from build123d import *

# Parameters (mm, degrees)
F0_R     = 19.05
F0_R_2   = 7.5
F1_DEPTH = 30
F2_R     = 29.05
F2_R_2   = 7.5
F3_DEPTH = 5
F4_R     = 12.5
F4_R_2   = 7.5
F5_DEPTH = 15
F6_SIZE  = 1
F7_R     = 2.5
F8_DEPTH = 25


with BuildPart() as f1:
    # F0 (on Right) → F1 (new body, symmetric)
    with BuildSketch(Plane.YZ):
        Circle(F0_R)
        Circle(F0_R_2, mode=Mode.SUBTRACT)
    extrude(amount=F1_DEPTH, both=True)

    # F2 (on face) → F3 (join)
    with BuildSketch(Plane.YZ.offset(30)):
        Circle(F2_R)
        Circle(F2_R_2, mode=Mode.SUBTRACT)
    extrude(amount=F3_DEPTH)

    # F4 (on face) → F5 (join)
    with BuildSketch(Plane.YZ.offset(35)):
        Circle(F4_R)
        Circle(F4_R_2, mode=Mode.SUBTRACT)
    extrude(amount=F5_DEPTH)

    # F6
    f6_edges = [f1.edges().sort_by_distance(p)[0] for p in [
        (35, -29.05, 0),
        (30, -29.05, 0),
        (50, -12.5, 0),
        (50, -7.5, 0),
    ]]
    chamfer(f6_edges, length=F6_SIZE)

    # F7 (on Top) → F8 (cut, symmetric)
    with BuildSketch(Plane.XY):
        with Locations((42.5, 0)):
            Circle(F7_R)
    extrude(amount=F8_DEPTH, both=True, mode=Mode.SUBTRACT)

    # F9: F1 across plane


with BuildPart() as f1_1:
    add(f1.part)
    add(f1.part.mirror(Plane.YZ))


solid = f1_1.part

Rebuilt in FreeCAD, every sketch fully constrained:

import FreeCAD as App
import Part
import Sketcher
from FreeCAD import Vector


def edges_at(feature, points):
    """Names of the edges that pass closest to the given points."""
    edges = feature.Shape.Edges
    near = lambda p: min(range(len(edges)), key=lambda i: edges[i].distToShape(Part.Vertex(*p))[0])
    return sorted({f"Edge{near(p) + 1}" for p in points})

doc = App.newDocument("Part")
body = doc.addObject("PartDesign::Body", "Body")

# Sketch on YZ plane
sketch1 = body.newObject("Sketcher::SketchObject", "Sketch")
sketch1.AttachmentSupport = (doc.getObject("YZ_Plane"), [""])
sketch1.MapMode = "FlatFace"
sketch1.addGeometry([
    Part.Circle(Vector(0, 0, 0), Vector(0, 0, 1), 19),
    Part.Circle(Vector(0, 0, 0), Vector(0, 0, 1), 8),
], False)
sketch1.addConstraint([
    Sketcher.Constraint("Coincident", 0, 3, -1, 1),
    Sketcher.Constraint("Coincident", 1, 3, -1, 1),
    Sketcher.Constraint("Diameter", 1, 15.0),
    Sketcher.Constraint("Diameter", 0, 38.1),
])
pad1 = body.newObject("PartDesign::Pad", "Pad")
pad1.Profile = sketch1
pad1.Length = 60
pad1.Midplane = True

# Sketch on YZ plane
sketch2 = body.newObject("Sketcher::SketchObject", "Sketch001")
sketch2.AttachmentSupport = (doc.getObject("YZ_Plane"), [""])
sketch2.MapMode = "FlatFace"
sketch2.AttachmentOffset = App.Placement(Vector(0, 0, 30), App.Rotation())
sketch2.addGeometry([
    Part.Circle(Vector(0, 0, 0), Vector(0, 0, 1), 29),
    Part.Circle(Vector(0, 0, 0), Vector(0, 0, 1), 8),
], False)
sketch2.addConstraint([
    Sketcher.Constraint("Coincident", 0, 3, -1, 1),
    Sketcher.Constraint("Coincident", 1, 3, -1, 1),
    Sketcher.Constraint("Diameter", 1, 15.0),
    Sketcher.Constraint("Diameter", 0, 58.1),
])
pad2 = body.newObject("PartDesign::Pad", "Pad001")
pad2.Profile = sketch2
pad2.Length = 5

# Sketch on YZ plane
sketch3 = body.newObject("Sketcher::SketchObject", "Sketch002")
sketch3.AttachmentSupport = (doc.getObject("YZ_Plane"), [""])
sketch3.MapMode = "FlatFace"
sketch3.AttachmentOffset = App.Placement(Vector(0, 0, 35), App.Rotation())
sketch3.addGeometry([
    Part.Circle(Vector(0, 0, 0), Vector(0, 0, 1), 12),
    Part.Circle(Vector(0, 0, 0), Vector(0, 0, 1), 8),
], False)
sketch3.addConstraint([
    Sketcher.Constraint("Coincident", 0, 3, -1, 1),
    Sketcher.Constraint("Coincident", 1, 3, -1, 1),
    Sketcher.Constraint("Diameter", 0, 25.0),
    Sketcher.Constraint("Diameter", 1, 15.0),
])
pad3 = body.newObject("PartDesign::Pad", "Pad002")
pad3.Profile = sketch3
pad3.Length = 15
doc.recompute()

chamfer = body.newObject("PartDesign::Chamfer", "Chamfer")
chamfer.Base = (pad3, edges_at(pad3, [
    (35, -29.05, 0),
    (30, -29.05, 0),
    (50, -12.5, 0),
    (50, -7.5, 0),
]))
chamfer.Size = 1

# Sketch on XY plane
sketch4 = body.newObject("Sketcher::SketchObject", "Sketch003")
sketch4.AttachmentSupport = (doc.getObject("XY_Plane"), [""])
sketch4.MapMode = "FlatFace"
sketch4.addGeometry(Part.Circle(Vector(42.5, 0, 0), Vector(0, 0, 1), 2.5), False)
sketch4.addConstraint([
    Sketcher.Constraint("PointOnObject", 0, 3, -1),
    Sketcher.Constraint("Diameter", 0, 5.0),
    Sketcher.Constraint("DistanceX", -1, 1, 0, 3, 42.5),
])
pocket1 = body.newObject("PartDesign::Pocket", "Pocket")
pocket1.Profile = sketch4
pocket1.Length = 50
pocket1.Midplane = True
body2 = doc.addObject("PartDesign::Body", "Body001")
doc.recompute()

body2.BaseFeature = body
doc.recompute()

mirroring = doc.addObject("Part::Mirroring", "Mirroring")
mirroring.Source = body
mirroring.Base = Vector(0, 0, 0)
mirroring.Normal = Vector(1, 0, 0)
body3 = doc.addObject("PartDesign::Body", "Body002")
body3.BaseFeature = mirroring
boolean = body2.newObject("PartDesign::Boolean", "Boolean")
boolean.Type = "Fuse"
boolean.addObjects([body3])
doc.recompute()
mirroring.Visibility = False

doc.recompute()
